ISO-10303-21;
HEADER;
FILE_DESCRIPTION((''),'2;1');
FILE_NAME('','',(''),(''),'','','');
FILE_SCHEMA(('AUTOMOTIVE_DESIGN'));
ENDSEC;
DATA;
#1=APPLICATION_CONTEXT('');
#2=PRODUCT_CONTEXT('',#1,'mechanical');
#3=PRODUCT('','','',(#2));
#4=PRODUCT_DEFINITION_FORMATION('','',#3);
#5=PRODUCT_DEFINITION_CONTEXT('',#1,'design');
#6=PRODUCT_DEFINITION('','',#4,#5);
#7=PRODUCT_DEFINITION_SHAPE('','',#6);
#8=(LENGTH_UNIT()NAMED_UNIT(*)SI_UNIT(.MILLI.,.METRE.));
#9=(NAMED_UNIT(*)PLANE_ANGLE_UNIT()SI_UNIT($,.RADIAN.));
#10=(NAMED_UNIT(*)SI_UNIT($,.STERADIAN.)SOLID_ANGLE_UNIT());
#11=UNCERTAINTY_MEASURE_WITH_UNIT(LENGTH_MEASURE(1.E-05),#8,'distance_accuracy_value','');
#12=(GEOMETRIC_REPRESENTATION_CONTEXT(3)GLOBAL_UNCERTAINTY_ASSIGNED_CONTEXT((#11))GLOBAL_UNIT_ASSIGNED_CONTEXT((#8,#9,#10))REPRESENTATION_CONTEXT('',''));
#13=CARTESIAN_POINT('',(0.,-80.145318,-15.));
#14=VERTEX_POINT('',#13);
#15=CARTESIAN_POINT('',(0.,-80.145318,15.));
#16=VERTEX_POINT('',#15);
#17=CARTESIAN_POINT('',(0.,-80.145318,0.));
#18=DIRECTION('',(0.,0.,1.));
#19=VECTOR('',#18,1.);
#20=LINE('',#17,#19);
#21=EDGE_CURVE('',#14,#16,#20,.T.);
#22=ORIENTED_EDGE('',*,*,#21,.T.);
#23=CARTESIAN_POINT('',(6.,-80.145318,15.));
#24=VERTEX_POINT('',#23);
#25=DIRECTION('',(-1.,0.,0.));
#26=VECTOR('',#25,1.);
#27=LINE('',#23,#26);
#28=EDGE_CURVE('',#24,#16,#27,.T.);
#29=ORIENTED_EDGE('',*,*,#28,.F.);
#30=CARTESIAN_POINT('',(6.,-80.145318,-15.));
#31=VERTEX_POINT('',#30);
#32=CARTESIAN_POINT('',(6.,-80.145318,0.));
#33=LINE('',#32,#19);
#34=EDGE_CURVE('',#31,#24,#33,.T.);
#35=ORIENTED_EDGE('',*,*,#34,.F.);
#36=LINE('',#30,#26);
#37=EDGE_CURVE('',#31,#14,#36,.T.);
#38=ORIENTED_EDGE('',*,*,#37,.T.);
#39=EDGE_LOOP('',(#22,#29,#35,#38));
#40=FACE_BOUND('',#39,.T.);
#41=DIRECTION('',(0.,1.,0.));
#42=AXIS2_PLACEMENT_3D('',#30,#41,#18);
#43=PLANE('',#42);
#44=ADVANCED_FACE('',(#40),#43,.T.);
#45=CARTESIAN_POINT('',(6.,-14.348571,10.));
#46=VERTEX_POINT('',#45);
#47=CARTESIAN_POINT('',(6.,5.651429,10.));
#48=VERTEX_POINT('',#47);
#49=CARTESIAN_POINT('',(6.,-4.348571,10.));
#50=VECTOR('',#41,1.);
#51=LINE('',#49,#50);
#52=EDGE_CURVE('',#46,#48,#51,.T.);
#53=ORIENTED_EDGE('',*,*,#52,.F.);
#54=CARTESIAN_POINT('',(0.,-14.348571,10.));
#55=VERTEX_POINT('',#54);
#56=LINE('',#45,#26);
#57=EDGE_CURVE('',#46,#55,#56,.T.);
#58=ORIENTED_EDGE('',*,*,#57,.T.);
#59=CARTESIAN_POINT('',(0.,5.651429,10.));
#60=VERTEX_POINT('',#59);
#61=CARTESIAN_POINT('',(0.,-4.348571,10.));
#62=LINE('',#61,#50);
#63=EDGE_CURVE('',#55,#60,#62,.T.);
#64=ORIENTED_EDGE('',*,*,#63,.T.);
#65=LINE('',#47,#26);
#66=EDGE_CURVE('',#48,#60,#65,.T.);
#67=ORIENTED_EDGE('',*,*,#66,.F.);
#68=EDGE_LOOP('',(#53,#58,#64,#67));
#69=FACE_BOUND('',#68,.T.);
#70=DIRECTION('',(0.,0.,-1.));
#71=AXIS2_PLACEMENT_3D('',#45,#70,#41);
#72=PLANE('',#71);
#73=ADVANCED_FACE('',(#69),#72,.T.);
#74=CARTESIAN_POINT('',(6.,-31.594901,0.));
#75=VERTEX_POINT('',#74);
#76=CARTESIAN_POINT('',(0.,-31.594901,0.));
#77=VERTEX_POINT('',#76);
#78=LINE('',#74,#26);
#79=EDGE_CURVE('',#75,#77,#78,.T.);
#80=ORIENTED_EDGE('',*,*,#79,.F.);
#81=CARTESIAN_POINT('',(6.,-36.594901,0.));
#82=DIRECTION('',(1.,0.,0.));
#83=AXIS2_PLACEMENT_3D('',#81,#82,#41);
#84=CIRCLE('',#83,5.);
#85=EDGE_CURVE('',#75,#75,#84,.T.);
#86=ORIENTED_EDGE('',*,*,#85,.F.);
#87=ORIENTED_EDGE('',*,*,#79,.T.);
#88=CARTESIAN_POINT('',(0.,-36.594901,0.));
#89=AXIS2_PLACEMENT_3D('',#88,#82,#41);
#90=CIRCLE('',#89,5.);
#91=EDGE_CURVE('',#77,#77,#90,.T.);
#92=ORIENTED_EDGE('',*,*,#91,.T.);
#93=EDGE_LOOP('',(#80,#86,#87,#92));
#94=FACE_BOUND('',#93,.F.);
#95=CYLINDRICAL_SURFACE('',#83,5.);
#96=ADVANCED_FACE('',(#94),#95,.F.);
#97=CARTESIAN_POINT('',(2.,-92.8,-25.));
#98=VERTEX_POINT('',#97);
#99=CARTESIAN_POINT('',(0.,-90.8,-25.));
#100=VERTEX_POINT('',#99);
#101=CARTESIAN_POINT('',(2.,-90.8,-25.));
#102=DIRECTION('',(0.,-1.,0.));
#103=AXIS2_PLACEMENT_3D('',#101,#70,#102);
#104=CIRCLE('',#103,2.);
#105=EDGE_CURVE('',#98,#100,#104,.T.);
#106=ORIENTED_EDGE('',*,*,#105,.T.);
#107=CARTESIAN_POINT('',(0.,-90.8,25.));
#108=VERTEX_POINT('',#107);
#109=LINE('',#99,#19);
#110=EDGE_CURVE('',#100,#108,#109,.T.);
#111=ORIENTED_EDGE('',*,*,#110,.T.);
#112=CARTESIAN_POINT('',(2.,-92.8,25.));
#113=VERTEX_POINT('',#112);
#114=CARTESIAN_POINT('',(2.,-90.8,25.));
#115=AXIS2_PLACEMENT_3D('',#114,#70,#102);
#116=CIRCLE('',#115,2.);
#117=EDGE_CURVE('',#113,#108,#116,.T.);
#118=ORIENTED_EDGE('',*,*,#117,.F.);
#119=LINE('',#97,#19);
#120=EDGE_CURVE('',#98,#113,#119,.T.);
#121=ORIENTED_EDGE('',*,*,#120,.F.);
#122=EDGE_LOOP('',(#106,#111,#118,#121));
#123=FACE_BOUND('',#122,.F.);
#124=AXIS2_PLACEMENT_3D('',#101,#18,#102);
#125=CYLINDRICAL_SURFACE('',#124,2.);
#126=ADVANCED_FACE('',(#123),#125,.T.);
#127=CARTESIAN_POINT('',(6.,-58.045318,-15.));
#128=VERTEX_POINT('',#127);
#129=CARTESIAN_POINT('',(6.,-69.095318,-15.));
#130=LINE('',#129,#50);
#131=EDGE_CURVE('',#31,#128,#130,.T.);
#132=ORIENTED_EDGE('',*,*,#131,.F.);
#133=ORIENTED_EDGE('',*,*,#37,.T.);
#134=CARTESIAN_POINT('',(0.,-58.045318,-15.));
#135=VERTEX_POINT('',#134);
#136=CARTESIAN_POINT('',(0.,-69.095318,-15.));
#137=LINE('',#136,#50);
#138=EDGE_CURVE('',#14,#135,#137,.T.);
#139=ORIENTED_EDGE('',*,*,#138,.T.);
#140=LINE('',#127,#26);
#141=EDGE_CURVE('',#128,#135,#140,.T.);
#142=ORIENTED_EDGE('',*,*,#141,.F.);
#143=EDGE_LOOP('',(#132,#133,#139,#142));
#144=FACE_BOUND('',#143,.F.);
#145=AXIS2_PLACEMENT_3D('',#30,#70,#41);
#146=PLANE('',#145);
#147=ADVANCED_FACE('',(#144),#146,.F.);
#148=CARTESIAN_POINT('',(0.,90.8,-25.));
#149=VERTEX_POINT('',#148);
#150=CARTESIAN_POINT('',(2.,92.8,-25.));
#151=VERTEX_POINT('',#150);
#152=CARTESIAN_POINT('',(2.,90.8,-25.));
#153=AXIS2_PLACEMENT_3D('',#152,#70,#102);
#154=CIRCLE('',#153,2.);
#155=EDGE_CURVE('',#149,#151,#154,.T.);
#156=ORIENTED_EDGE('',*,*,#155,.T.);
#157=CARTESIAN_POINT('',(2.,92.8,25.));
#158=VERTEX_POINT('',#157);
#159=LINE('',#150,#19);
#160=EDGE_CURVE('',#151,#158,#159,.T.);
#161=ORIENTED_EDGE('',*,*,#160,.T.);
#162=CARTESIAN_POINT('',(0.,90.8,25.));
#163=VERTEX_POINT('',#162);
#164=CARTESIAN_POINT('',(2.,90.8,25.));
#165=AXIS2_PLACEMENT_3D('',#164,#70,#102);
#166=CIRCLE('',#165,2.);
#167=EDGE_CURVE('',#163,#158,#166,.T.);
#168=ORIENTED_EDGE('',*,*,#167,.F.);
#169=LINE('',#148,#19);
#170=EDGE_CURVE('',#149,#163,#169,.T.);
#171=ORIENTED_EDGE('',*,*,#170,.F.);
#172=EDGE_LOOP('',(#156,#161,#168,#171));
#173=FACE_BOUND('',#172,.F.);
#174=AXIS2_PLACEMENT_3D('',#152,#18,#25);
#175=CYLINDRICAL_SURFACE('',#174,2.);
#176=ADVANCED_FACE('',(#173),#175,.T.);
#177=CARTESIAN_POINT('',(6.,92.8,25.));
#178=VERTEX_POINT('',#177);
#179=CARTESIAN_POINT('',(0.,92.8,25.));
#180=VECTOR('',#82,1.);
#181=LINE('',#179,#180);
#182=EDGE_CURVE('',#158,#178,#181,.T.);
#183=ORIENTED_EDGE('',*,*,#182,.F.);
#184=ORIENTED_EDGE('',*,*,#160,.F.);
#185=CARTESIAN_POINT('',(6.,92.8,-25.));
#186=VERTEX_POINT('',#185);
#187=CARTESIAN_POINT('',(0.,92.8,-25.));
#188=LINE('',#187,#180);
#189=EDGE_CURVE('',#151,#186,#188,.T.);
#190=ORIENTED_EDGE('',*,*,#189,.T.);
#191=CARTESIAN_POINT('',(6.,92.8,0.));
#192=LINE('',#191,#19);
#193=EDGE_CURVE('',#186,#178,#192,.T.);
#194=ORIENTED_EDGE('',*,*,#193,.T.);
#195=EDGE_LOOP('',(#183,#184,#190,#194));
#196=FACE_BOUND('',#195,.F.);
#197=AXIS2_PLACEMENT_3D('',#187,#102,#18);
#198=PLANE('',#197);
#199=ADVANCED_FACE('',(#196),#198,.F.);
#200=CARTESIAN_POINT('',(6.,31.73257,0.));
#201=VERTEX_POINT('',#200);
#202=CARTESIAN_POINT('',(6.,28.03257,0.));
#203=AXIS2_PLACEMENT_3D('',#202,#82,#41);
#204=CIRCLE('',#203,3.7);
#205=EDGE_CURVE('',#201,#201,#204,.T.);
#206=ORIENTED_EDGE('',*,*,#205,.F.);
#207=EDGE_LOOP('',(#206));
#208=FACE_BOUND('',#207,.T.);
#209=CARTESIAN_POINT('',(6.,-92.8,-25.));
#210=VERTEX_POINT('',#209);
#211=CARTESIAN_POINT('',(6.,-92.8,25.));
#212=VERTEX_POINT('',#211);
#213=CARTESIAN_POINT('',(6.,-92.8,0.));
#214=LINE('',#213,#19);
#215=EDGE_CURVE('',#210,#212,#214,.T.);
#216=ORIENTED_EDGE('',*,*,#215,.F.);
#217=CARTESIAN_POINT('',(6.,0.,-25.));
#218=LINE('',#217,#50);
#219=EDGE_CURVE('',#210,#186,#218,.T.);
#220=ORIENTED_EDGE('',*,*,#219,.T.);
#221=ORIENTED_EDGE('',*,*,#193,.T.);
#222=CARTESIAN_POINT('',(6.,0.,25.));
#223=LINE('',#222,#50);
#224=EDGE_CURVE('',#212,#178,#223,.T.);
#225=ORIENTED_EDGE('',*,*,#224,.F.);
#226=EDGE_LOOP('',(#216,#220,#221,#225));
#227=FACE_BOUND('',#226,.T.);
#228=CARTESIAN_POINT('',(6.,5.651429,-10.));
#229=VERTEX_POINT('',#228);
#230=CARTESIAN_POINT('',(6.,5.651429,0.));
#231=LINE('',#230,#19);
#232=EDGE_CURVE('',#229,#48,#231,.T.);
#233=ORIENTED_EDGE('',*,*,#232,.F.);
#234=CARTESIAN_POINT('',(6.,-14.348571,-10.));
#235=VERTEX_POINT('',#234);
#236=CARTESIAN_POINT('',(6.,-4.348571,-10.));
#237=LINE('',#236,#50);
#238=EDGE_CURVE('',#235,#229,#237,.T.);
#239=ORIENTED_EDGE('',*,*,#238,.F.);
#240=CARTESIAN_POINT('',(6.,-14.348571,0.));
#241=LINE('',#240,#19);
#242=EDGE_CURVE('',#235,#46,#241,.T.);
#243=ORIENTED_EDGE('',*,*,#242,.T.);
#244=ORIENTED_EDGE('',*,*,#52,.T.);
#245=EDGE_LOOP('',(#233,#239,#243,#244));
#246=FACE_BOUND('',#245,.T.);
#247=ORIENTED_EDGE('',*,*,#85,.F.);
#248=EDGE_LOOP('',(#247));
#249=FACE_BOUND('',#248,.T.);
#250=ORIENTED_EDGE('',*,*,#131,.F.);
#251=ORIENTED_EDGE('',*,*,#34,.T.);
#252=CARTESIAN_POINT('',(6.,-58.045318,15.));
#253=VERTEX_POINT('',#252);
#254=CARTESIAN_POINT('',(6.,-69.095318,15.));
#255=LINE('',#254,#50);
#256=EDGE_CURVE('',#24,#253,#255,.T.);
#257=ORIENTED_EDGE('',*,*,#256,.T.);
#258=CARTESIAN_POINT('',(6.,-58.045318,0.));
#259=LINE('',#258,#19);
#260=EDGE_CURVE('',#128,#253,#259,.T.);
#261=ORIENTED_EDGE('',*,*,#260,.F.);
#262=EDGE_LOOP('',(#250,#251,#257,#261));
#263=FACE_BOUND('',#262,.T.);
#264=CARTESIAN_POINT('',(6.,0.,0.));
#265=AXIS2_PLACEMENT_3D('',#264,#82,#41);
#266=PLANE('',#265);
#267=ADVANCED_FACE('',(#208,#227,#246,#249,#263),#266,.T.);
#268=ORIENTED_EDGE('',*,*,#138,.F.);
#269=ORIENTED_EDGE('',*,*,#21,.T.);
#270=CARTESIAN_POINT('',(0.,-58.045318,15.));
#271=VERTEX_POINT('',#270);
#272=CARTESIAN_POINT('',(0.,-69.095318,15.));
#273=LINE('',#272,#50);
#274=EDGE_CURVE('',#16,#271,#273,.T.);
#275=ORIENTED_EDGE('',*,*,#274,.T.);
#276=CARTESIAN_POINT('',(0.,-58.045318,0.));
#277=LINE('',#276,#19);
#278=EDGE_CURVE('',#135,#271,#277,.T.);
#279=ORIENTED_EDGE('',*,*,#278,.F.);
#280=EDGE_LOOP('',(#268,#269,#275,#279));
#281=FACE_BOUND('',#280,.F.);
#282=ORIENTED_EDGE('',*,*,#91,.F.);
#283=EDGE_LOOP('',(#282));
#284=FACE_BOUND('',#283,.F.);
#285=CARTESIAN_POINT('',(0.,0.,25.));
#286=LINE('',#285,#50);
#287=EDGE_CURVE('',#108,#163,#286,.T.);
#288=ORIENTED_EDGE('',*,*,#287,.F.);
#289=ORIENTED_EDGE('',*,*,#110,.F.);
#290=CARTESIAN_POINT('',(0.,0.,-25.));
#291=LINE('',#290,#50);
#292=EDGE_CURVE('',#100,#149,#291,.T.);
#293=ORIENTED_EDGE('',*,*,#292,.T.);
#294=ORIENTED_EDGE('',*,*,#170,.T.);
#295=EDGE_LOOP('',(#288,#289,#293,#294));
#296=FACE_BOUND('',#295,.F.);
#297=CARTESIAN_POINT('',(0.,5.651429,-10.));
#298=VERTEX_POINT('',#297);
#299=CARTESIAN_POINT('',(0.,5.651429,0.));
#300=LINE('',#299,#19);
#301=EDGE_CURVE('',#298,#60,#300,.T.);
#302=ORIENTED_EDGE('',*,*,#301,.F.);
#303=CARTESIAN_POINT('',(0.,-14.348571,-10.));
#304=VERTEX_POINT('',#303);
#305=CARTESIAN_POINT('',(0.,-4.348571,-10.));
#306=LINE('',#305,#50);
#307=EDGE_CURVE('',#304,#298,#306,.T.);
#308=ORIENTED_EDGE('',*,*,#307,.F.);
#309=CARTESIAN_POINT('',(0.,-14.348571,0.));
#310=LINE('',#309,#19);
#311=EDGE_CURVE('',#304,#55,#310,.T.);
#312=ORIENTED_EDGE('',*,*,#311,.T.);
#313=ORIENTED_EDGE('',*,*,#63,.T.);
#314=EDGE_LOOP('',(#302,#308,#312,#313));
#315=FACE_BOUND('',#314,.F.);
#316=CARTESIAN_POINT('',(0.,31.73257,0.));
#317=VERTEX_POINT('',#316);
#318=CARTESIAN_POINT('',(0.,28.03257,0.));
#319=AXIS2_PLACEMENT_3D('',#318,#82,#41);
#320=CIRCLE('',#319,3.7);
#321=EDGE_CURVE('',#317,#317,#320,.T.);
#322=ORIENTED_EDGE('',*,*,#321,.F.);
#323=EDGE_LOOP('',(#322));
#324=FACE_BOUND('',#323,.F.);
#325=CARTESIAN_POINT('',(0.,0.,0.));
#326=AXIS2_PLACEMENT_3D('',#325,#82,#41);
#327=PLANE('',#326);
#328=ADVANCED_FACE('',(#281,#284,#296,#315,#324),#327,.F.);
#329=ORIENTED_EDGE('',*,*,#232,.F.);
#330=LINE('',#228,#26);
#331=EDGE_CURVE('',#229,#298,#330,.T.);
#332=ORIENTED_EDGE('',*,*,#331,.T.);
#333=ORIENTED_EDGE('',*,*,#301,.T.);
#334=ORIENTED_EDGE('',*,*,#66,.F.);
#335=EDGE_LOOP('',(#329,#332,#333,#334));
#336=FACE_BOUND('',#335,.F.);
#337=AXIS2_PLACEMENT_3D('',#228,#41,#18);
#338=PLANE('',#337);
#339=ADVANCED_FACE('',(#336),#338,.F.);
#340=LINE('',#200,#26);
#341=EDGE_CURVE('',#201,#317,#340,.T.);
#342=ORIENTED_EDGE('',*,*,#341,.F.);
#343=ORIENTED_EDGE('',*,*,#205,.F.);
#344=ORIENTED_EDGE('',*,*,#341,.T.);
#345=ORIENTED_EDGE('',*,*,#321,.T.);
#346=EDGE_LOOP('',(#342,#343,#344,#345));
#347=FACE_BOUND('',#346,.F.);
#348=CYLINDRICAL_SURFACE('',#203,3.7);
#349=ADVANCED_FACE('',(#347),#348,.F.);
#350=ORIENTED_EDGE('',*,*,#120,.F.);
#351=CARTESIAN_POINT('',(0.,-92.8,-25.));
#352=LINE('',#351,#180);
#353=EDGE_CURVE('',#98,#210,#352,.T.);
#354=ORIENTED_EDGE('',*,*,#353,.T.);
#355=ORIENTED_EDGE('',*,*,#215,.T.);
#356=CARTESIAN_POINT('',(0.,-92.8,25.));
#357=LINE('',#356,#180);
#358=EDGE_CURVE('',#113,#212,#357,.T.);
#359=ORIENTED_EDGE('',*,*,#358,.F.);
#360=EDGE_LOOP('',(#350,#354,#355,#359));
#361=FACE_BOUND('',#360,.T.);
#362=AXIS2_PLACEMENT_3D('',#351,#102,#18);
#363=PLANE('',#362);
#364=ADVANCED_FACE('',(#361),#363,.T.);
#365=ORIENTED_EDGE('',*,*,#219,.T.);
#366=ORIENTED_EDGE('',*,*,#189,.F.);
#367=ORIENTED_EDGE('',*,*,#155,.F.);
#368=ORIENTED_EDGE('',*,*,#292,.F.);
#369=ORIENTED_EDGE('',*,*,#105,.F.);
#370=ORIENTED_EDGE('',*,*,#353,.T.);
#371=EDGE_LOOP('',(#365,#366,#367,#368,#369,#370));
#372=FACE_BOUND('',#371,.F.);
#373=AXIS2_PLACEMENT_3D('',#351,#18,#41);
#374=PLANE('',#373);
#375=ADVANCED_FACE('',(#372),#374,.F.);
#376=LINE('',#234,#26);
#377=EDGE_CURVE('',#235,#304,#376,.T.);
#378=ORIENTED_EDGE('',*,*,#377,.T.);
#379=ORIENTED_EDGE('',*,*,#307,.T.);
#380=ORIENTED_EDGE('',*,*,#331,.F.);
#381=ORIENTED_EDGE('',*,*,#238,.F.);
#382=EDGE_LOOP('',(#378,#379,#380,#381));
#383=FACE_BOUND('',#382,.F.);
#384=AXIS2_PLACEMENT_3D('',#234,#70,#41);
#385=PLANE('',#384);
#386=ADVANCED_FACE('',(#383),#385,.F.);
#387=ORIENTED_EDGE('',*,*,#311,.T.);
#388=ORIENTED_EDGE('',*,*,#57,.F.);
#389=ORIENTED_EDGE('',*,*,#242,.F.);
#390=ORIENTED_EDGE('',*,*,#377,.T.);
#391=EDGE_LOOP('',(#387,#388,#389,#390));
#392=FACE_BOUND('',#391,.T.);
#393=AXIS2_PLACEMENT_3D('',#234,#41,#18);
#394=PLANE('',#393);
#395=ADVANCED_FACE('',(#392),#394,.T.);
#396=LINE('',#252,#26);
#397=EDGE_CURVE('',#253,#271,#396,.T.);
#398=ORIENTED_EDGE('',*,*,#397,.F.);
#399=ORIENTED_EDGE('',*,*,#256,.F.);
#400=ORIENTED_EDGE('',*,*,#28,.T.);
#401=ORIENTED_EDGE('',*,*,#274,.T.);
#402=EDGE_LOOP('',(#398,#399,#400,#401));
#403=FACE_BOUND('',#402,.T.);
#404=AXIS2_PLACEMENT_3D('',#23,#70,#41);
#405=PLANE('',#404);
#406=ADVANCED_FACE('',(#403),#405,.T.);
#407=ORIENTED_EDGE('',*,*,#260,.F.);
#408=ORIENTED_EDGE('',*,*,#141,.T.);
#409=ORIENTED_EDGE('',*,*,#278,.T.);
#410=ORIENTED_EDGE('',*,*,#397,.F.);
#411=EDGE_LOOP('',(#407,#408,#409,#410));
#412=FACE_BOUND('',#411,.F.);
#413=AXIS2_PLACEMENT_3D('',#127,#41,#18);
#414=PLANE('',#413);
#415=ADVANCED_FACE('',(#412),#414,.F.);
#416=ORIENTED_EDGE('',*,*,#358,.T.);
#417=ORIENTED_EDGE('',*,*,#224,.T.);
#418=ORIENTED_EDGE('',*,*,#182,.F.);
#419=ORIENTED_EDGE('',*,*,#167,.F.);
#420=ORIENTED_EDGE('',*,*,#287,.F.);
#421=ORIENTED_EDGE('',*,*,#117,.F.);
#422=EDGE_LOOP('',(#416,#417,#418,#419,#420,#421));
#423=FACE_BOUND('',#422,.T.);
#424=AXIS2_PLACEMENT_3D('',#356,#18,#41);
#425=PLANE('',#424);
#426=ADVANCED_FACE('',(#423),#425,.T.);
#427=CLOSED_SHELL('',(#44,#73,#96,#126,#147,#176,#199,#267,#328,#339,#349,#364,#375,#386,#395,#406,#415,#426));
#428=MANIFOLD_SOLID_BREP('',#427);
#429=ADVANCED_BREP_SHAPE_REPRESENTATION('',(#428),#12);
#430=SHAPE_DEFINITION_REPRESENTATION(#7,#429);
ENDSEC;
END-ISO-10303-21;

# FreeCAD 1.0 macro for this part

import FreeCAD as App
import Part
import Sketcher
from FreeCAD import Vector


def edges_at(feature, points):
    """Names of the edges that pass closest to the given points."""
    edges = feature.Shape.Edges
    near = lambda p: min(range(len(edges)), key=lambda i: edges[i].distToShape(Part.Vertex(*p))[0])
    return sorted({f"Edge{near(p) + 1}" for p in points})

doc = App.newDocument("Part")
body = doc.addObject("PartDesign::Body", "Body")

# Sketch on YZ plane
sketch1 = doc.addObject("Sketcher::SketchObject", "Sketch")
body.addObject(sketch1)
sketch1.AttachmentSupport = (doc.YZ_Plane, [""])
sketch1.MapMode = "FlatFace"
sketch1.addGeometry(Part.LineSegment(Vector(-93, 25, 0), Vector(-93, -25, 0)), False)
sketch1.addGeometry(Part.LineSegment(Vector(-93, -25, 0), Vector(93, -25, 0)), False)
sketch1.addGeometry(Part.LineSegment(Vector(93, -25, 0), Vector(93, 25, 0)), False)
sketch1.addGeometry(Part.LineSegment(Vector(93, 25, 0), Vector(-93, 25, 0)), False)
sketch1.addConstraint(Sketcher.Constraint("Coincident", 0, 2, 1, 1))
sketch1.addConstraint(Sketcher.Constraint("Coincident", 1, 2, 2, 1))
sketch1.addConstraint(Sketcher.Constraint("Coincident", 2, 2, 3, 1))
sketch1.addConstraint(Sketcher.Constraint("Coincident", 3, 2, 0, 1))
sketch1.addConstraint(Sketcher.Constraint("Vertical", 0))
sketch1.addConstraint(Sketcher.Constraint("Horizontal", 1))
sketch1.addConstraint(Sketcher.Constraint("Vertical", 2))
sketch1.addConstraint(Sketcher.Constraint("Horizontal", 3))
sketch1.addConstraint(Sketcher.Constraint("Symmetric", 0, 2, 2, 2, -1, 1))
sketch1.addConstraint(Sketcher.Constraint("DistanceY", 0, 2, 0, 1, 50.0))
sketch1.addConstraint(Sketcher.Constraint("DistanceX", 1, 1, 1, 2, 185.6))
pad1 = doc.addObject("PartDesign::Pad", "Pad")
body.addObject(pad1)
pad1.Profile = sketch1
pad1.Length = 6

# Sketch on YZ plane
sketch2 = doc.addObject("Sketcher::SketchObject", "Sketch001")
body.addObject(sketch2)
sketch2.AttachmentSupport = (doc.YZ_Plane, [""])
sketch2.MapMode = "FlatFace"
sketch2.AttachmentOffset = App.Placement(Vector(0, 0, 6), App.Rotation())
sketch2.addGeometry(Part.LineSegment(Vector(-80, 15, 0), Vector(-80, -15, 0)), False)
sketch2.addGeometry(Part.LineSegment(Vector(-80, -15, 0), Vector(-58, -15, 0)), False)
sketch2.addGeometry(Part.LineSegment(Vector(-58, -15, 0), Vector(-58, 15, 0)), False)
sketch2.addGeometry(Part.LineSegment(Vector(-58, 15, 0), Vector(-80, 15, 0)), False)
sketch2.addConstraint(Sketcher.Constraint("Coincident", 0, 2, 1, 1))
sketch2.addConstraint(Sketcher.Constraint("Coincident", 1, 2, 2, 1))
sketch2.addConstraint(Sketcher.Constraint("Coincident", 2, 2, 3, 1))
sketch2.addConstraint(Sketcher.Constraint("Coincident", 3, 2, 0, 1))
sketch2.addConstraint(Sketcher.Constraint("Vertical", 0))
sketch2.addConstraint(Sketcher.Constraint("Horizontal", 1))
sketch2.addConstraint(Sketcher.Constraint("Vertical", 2))
sketch2.addConstraint(Sketcher.Constraint("Horizontal", 3))
sketch2.addConstraint(Sketcher.Constraint("DistanceY", 0, 2, 0, 1, 30.0))
sketch2.addConstraint(Sketcher.Constraint("DistanceX", 1, 1, 1, 2, 22.1))
sketch2.addConstraint(Sketcher.Constraint("DistanceY", 0, 2, -1, 1, 15.0))
sketch2.addConstraint(Sketcher.Constraint("DistanceX", 0, 2, -1, 1, 80.145318))
pocket1 = doc.addObject("PartDesign::Pocket", "Pocket")
body.addObject(pocket1)
pocket1.Profile = sketch2
pocket1.Type = "ThroughAll"

# Sketch on YZ plane
sketch3 = doc.addObject("Sketcher::SketchObject", "Sketch002")
body.addObject(sketch3)
sketch3.AttachmentSupport = (doc.YZ_Plane, [""])
sketch3.MapMode = "FlatFace"
sketch3.AttachmentOffset = App.Placement(Vector(0, 0, 6), App.Rotation())
sketch3.addGeometry(Part.Circle(Vector(-37, 0, 0), Vector(0, 0, 1), 5), False)
sketch3.addConstraint(Sketcher.Constraint("PointOnObject", 0, 3, -1))
sketch3.addConstraint(Sketcher.Constraint("Diameter", 0, 10.0))
sketch3.addConstraint(Sketcher.Constraint("DistanceX", 0, 3, -1, 1, 36.594901))
pocket2 = doc.addObject("PartDesign::Pocket", "Pocket001")
body.addObject(pocket2)
pocket2.Profile = sketch3
pocket2.Type = "ThroughAll"

# Sketch on YZ plane
sketch4 = doc.addObject("Sketcher::SketchObject", "Sketch003")
body.addObject(sketch4)
sketch4.AttachmentSupport = (doc.YZ_Plane, [""])
sketch4.MapMode = "FlatFace"
sketch4.AttachmentOffset = App.Placement(Vector(0, 0, 6), App.Rotation())
sketch4.addGeometry(Part.LineSegment(Vector(-14, 10, 0), Vector(-14, -10, 0)), False)
sketch4.addGeometry(Part.LineSegment(Vector(-14, -10, 0), Vector(6, -10, 0)), False)
sketch4.addGeometry(Part.LineSegment(Vector(6, -10, 0), Vector(6, 10, 0)), False)
sketch4.addGeometry(Part.LineSegment(Vector(6, 10, 0), Vector(-14, 10, 0)), False)
sketch4.addConstraint(Sketcher.Constraint("Coincident", 0, 2, 1, 1))
sketch4.addConstraint(Sketcher.Constraint("Coincident", 1, 2, 2, 1))
sketch4.addConstraint(Sketcher.Constraint("Coincident", 2, 2, 3, 1))
sketch4.addConstraint(Sketcher.Constraint("Coincident", 3, 2, 0, 1))
sketch4.addConstraint(Sketcher.Constraint("Vertical", 0))
sketch4.addConstraint(Sketcher.Constraint("Horizontal", 1))
sketch4.addConstraint(Sketcher.Constraint("Vertical", 2))
sketch4.addConstraint(Sketcher.Constraint("Horizontal", 3))
sketch4.addConstraint(Sketcher.Constraint("Equal", 3, 0))
sketch4.addConstraint(Sketcher.Constraint("DistanceX", 1, 1, 1, 2, 20.0))
sketch4.addConstraint(Sketcher.Constraint("DistanceY", 0, 2, -1, 1, 10.0))
sketch4.addConstraint(Sketcher.Constraint("DistanceX", 0, 2, -1, 1, 14.348571))
pocket3 = doc.addObject("PartDesign::Pocket", "Pocket002")
body.addObject(pocket3)
pocket3.Profile = sketch4
pocket3.Type = "ThroughAll"

# Sketch on YZ plane
sketch5 = doc.addObject("Sketcher::SketchObject", "Sketch004")
body.addObject(sketch5)
sketch5.AttachmentSupport = (doc.YZ_Plane, [""])
sketch5.MapMode = "FlatFace"
sketch5.AttachmentOffset = App.Placement(Vector(0, 0, 6), App.Rotation())
sketch5.addGeometry(Part.Circle(Vector(28, 0, 0), Vector(0, 0, 1), 3.7), False)
sketch5.addConstraint(Sketcher.Constraint("PointOnObject", 0, 3, -1))
sketch5.addConstraint(Sketcher.Constraint("Diameter", 0, 7.4))
sketch5.addConstraint(Sketcher.Constraint("DistanceX", -1, 1, 0, 3, 28.03257))
pocket4 = doc.addObject("PartDesign::Pocket", "Pocket003")
body.addObject(pocket4)
pocket4.Profile = sketch5
pocket4.Type = "ThroughAll"
doc.recompute()

fillet = doc.addObject("PartDesign::Fillet", "Fillet")
body.addObject(fillet)
fillet.Base = (pocket4, edges_at(pocket4, [(0, 92.8, 0), (0, -92.8, 0)]))
fillet.Radius = 2

doc.recompute()
